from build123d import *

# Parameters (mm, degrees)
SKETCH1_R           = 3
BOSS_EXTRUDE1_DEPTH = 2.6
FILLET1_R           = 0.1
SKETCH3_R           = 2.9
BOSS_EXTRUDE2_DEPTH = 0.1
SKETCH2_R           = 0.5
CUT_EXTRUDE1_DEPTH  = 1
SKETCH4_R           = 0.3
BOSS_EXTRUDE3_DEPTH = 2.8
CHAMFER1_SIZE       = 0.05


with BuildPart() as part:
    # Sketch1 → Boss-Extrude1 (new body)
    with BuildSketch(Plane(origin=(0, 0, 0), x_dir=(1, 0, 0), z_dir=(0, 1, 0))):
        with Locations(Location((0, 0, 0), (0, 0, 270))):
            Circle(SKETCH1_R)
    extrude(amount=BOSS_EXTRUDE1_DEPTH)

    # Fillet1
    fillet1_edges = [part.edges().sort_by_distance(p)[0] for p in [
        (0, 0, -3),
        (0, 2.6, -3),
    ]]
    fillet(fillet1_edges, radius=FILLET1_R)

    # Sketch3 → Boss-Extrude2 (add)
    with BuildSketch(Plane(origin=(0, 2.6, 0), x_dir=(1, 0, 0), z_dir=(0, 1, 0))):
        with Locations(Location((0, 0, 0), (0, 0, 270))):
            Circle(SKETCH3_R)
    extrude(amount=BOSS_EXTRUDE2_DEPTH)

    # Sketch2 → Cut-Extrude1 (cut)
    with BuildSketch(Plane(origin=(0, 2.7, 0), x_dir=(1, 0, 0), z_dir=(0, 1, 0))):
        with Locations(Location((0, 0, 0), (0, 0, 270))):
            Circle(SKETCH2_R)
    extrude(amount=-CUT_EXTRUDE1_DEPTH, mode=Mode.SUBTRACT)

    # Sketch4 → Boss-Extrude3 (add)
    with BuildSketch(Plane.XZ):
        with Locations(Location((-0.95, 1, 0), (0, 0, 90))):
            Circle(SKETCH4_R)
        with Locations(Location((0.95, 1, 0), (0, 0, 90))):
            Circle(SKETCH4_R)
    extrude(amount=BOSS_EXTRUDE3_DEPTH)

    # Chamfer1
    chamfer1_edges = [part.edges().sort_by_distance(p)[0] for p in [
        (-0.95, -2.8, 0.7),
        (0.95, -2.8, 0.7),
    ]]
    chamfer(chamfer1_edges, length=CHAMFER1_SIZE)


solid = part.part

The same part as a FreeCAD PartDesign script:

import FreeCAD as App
import Part
import Sketcher

V = App.Vector
Q = App.Units.Quantity


def edges_at(feature, points):
    """Names of the edges that pass closest to the given points."""
    edges = feature.Shape.Edges
    near = lambda p: min(range(len(edges)), key=lambda i: edges[i].distToShape(Part.Vertex(*p))[0])
    return sorted({f"Edge{near(p) + 1}" for p in points})

doc = App.newDocument("Part")
params = doc.addObject("Spreadsheet::Sheet", "Params")
for row, (alias, value) in enumerate([
    ("sketch1_diameter", "6 mm"),
    ("pad1_length", "2.6 mm"),
    ("fillet_radius", "0.1 mm"),
    ("sketch2_diameter", "5.8 mm"),
    ("pad2_length", "0.1 mm"),
    ("sketch3_diameter", "1 mm"),
    ("pocket1_length", "1 mm"),
    ("sketch4_diameter", "0.6 mm"),
    ("pad3_length", "2.8 mm"),
    ("chamfer_size", "0.05 mm"),
], start=1):
    params.set(f"A{row}", alias)
    params.set(f"B{row}", "=" + value)
    params.setAlias(f"B{row}", alias)

body = doc.addObject("PartDesign::Body", "Body")

sketch1 = body.newObject("Sketcher::SketchObject", "Sketch")
sketch1.AttachmentSupport = (doc.getObject("XZ_Plane"), [""])
sketch1.MapMode = "FlatFace"
sketch1.addGeometry(Part.Circle(V(0, 0, 0), V(0, 0, 1), 3), False)
sketch1.addConstraint(Sketcher.Constraint("Coincident", 0, 3, -1, 1))
sketch1.addConstraint(Sketcher.Constraint("Diameter", 0, Q("6 mm")))
sketch1.setExpression("Constraints[1]", "Params.sketch1_diameter")
pad1 = body.newObject("PartDesign::Pad", "Pad")
pad1.Profile = sketch1
pad1.setExpression("Length", "Params.pad1_length")
pad1.Reversed = True
doc.recompute()

fillet = body.newObject("PartDesign::Fillet", "Fillet")
fillet.Base = (pad1, edges_at(pad1, [(0, 0, -3), (0, 2.6, -3)]))
fillet.setExpression("Radius", "Params.fillet_radius")

sketch2 = body.newObject("Sketcher::SketchObject", "Sketch001")
sketch2.AttachmentSupport = (doc.getObject("XZ_Plane"), [""])
sketch2.MapMode = "FlatFace"
sketch2.AttachmentOffset = App.Placement(V(0, 0, -2.6), App.Rotation())
sketch2.addGeometry(Part.Circle(V(0, 0, 0), V(0, 0, 1), 2.9), False)
sketch2.addConstraint(Sketcher.Constraint("Coincident", 0, 3, -1, 1))
sketch2.addConstraint(Sketcher.Constraint("Diameter", 0, Q("5.8 mm")))
sketch2.setExpression("Constraints[1]", "Params.sketch2_diameter")
pad2 = body.newObject("PartDesign::Pad", "Pad001")
pad2.Profile = sketch2
pad2.setExpression("Length", "Params.pad2_length")
pad2.Reversed = True

sketch3 = body.newObject("Sketcher::SketchObject", "Sketch002")
sketch3.AttachmentSupport = (doc.getObject("XZ_Plane"), [""])
sketch3.MapMode = "FlatFace"
sketch3.AttachmentOffset = App.Placement(V(0, 0, -2.7), App.Rotation())
sketch3.addGeometry(Part.Circle(V(0, 0, 0), V(0, 0, 1), 0.5), False)
sketch3.addConstraint(Sketcher.Constraint("Coincident", 0, 3, -1, 1))
sketch3.addConstraint(Sketcher.Constraint("Diameter", 0, Q("1 mm")))
sketch3.setExpression("Constraints[1]", "Params.sketch3_diameter")
pocket1 = body.newObject("PartDesign::Pocket", "Pocket")
pocket1.Profile = sketch3
pocket1.setExpression("Length", "Params.pocket1_length")
pocket1.Reversed = True

sketch4 = body.newObject("Sketcher::SketchObject", "Sketch003")
sketch4.AttachmentSupport = (doc.getObject("XZ_Plane"), [""])
sketch4.MapMode = "FlatFace"
sketch4.addGeometry(Part.Circle(V(-0.95, 1, 0), V(0, 0, 1), 0.3), False)
sketch4.addGeometry(Part.Circle(V(0.95, 1, 0), V(0, 0, 1), 0.3), False)
sketch4.addConstraint(Sketcher.Constraint("Equal", 0, 1))
sketch4.addConstraint(Sketcher.Constraint("Symmetric", 0, 3, 1, 3, -2))
sketch4.addConstraint(Sketcher.Constraint("Diameter", 0, Q("0.6 mm")))
sketch4.addConstraint(Sketcher.Constraint("DistanceY", -1, 1, 0, 3, Q("1 mm")))
sketch4.addConstraint(Sketcher.Constraint("DistanceX", 0, 3, 1, 3, Q("1.9 mm")))
sketch4.setExpression("Constraints[2]", "Params.sketch4_diameter")
pad3 = body.newObject("PartDesign::Pad", "Pad002")
pad3.Profile = sketch4
pad3.setExpression("Length", "Params.pad3_length")
doc.recompute()

chamfer = body.newObject("PartDesign::Chamfer", "Chamfer")
chamfer.Base = (pad3, edges_at(pad3, [(-0.95, -2.8, 0.7), (0.95, -2.8, 0.7)]))
chamfer.setExpression("Size", "Params.chamfer_size")

doc.recompute()
